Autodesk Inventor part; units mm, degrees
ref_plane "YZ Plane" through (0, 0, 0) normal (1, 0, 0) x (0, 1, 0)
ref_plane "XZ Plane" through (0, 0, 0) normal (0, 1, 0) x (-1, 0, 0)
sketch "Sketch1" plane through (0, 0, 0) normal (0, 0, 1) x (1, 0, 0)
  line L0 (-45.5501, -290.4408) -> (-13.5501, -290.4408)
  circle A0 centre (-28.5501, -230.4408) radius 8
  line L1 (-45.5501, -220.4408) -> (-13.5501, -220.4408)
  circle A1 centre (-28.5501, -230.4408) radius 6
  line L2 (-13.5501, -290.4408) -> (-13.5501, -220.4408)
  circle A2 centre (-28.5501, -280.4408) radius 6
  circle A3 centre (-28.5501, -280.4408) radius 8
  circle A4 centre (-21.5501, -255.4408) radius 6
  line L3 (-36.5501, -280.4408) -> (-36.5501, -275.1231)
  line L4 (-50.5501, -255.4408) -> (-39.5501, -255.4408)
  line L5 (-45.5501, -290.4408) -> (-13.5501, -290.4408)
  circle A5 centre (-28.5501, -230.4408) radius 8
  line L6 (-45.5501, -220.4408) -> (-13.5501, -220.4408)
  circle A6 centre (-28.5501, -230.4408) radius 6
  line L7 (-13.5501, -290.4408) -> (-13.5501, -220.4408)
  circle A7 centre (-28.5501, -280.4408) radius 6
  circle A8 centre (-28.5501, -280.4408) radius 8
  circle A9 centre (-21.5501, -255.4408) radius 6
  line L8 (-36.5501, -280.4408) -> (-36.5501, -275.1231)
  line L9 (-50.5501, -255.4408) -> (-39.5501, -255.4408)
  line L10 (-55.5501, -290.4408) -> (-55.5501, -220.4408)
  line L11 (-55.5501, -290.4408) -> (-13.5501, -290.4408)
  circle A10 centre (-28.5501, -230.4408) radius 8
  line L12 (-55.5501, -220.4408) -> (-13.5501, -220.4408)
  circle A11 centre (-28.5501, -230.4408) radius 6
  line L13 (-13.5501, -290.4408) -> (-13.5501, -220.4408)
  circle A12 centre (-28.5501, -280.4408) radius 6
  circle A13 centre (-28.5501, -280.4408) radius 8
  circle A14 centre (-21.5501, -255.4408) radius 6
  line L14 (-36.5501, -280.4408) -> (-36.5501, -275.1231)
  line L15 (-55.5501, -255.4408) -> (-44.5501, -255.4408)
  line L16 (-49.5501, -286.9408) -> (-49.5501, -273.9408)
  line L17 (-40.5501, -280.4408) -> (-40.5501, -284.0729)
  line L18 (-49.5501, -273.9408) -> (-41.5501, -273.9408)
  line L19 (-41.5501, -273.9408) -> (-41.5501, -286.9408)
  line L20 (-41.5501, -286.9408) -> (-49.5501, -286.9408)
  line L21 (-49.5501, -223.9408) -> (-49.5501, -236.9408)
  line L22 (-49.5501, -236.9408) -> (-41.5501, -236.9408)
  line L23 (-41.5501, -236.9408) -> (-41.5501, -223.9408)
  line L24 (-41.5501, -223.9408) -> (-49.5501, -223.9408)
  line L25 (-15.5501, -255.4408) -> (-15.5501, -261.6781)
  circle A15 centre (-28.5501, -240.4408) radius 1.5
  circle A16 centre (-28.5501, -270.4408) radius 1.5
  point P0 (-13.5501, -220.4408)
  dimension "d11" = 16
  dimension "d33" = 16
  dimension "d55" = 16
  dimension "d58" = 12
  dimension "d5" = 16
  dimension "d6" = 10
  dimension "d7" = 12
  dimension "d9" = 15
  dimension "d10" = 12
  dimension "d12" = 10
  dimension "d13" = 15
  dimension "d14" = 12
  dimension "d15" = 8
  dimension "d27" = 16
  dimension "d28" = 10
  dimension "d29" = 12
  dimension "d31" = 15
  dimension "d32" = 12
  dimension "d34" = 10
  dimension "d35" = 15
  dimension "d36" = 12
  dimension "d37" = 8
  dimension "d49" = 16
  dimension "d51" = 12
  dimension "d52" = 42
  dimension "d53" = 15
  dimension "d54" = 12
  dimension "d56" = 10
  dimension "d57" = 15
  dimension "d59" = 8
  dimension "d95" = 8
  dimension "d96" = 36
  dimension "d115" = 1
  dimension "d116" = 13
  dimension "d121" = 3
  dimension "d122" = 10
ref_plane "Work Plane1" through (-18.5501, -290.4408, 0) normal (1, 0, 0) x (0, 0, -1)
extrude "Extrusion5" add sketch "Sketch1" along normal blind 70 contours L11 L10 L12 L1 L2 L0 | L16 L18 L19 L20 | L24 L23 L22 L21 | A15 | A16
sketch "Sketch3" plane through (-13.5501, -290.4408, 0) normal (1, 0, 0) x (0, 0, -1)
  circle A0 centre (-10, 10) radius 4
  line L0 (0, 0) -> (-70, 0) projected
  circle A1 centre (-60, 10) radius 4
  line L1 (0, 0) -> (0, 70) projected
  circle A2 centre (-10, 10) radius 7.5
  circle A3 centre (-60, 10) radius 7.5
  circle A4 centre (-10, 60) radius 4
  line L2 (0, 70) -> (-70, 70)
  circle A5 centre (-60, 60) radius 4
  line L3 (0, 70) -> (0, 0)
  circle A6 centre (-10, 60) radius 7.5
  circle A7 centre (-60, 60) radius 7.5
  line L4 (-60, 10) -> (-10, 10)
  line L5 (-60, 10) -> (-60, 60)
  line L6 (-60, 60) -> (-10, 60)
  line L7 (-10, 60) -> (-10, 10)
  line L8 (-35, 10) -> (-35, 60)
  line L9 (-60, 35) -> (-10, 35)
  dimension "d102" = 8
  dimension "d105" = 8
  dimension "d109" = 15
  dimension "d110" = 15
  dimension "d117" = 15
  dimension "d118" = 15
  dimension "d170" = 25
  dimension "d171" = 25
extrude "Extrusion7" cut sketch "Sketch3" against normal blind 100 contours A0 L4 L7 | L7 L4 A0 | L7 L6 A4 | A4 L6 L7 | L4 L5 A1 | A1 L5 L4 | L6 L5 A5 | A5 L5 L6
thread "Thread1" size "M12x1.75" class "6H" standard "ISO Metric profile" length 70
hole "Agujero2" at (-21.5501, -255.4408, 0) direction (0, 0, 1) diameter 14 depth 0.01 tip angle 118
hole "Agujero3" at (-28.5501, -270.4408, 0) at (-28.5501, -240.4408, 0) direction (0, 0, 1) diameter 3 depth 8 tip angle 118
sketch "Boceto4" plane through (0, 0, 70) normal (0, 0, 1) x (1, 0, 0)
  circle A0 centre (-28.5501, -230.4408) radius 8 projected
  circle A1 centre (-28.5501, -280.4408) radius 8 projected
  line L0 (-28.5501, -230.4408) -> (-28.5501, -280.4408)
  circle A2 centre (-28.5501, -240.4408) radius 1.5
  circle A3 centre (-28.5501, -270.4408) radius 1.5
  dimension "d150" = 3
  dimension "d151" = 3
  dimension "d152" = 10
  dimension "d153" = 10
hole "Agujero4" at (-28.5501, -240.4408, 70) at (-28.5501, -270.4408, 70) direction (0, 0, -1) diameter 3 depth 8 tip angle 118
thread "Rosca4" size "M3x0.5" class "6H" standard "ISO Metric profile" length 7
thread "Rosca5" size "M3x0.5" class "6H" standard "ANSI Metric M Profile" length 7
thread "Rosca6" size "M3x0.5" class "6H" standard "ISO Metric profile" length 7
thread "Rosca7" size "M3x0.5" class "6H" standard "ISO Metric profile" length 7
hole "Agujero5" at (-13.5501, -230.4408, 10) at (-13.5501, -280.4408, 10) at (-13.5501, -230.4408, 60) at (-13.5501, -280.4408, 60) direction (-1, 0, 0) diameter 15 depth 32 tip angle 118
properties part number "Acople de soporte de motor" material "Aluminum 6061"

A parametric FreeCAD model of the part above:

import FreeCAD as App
import Part
import Sketcher
from FreeCAD import Vector


def add_polygon(sketch, points):
    """Adds a closed chain of lines whose ends are joined by coincident constraints."""
    first, n = sketch.GeometryCount, len(points)
    for a, b in zip(points, points[1:] + points[:1]):
        sketch.addGeometry(Part.LineSegment(App.Vector(*a, 0), App.Vector(*b, 0)), False)
    for i in range(n):
        sketch.addConstraint(Sketcher.Constraint("Coincident", first + i, 2, first + (i + 1) % n, 1))

doc = App.newDocument("Part")
params = doc.addObject("Spreadsheet::Sheet", "Params")
for row, (alias, value) in enumerate([
    ("sketch1_diameter", "16 mm"),
    ("sketch1_diameter2", "12 mm"),
    ("sketch1_width", "42 mm"),
    ("sketch1_height", "70 mm"),
    ("pad1_length", "70 mm"),
    ("sketch2_diameter", "8 mm"),
    ("pocket1_length", "100 mm"),
    ("sketch3_diameter", "14 mm"),
    ("hole_diameter", "14 mm"),
    ("hole_depth", "0.01 mm"),
    ("sketch4_diameter", "3 mm"),
    ("hole2_diameter", "3 mm"),
    ("hole2_depth", "8 mm"),
    ("sketch5_diameter", "3 mm"),
    ("hole3_diameter", "3 mm"),
    ("hole3_depth", "8 mm"),
    ("sketch6_diameter", "15 mm"),
    ("hole4_diameter", "15 mm"),
    ("hole4_depth", "32 mm"),
], start=1):
    params.set(f"A{row}", alias)
    params.set(f"B{row}", "=" + value)
    params.setAlias(f"B{row}", alias)

body = doc.addObject("PartDesign::Body", "Body")

# Sketch on XY plane
sketch1 = doc.addObject("Sketcher::SketchObject", "Sketch")
body.addObject(sketch1)
sketch1.AttachmentSupport = (doc.XY_Plane, [""])
sketch1.MapMode = "FlatFace"
add_polygon(sketch1, [(-56, -290), (-14, -290), (-14, -220), (-56, -220)])  # lines 0-3
sketch1.addGeometry(Part.Circle(Vector(-29, -280, 0), Vector(0, 0, 1), 8), False)  # 4
sketch1.addGeometry(Part.Circle(Vector(-22, -255, 0), Vector(0, 0, 1), 6), False)  # 5
sketch1.addGeometry(Part.Circle(Vector(-29, -230, 0), Vector(0, 0, 1), 8), False)  # 6
sketch1.addConstraint([
    Sketcher.Constraint("Horizontal", 0),
    Sketcher.Constraint("Vertical", 1),
    Sketcher.Constraint("Horizontal", 2),
    Sketcher.Constraint("Vertical", 3),
    Sketcher.Constraint("Equal", 4, 6),
    Sketcher.Constraint("Vertical", 4, 3, 6, 3),
    Sketcher.Constraint("Diameter", 4, 16.0),
    Sketcher.Constraint("Diameter", 5, 12.0),
    Sketcher.Constraint("DistanceX", 0, 1, 0, 2, 42.0),
    Sketcher.Constraint("DistanceX", 4, 3, 0, 2, 15.0),
    Sketcher.Constraint("DistanceY", 0, 2, 4, 3, 10.0),
    Sketcher.Constraint("DistanceX", 5, 3, 0, 2, 8.0),
    Sketcher.Constraint("DistanceY", 6, 3, 1, 2, 10.0),
    Sketcher.Constraint("DistanceY", 1, 1, 1, 2, 70.0),
    Sketcher.Constraint("DistanceY", 4, 3, 5, 3, 25.0),
    Sketcher.Constraint("DistanceX", 4, 3, -1, 1, 28.55),
    Sketcher.Constraint("DistanceY", 4, 3, -1, 1, 280.4408),
])
sketch1.setExpression("Constraints[10]", "Params.sketch1_diameter")
sketch1.setExpression("Constraints[11]", "Params.sketch1_diameter2")
sketch1.setExpression("Constraints[12]", "Params.sketch1_width")
sketch1.setExpression("Constraints[17]", "Params.sketch1_height")
pad1 = doc.addObject("PartDesign::Pad", "Pad")
body.addObject(pad1)
pad1.Profile = sketch1
pad1.setExpression("Length", "Params.pad1_length")

# Sketch on YZ plane
sketch2 = doc.addObject("Sketcher::SketchObject", "Sketch001")
body.addObject(sketch2)
sketch2.AttachmentSupport = (doc.YZ_Plane, [""])
sketch2.MapMode = "FlatFace"
sketch2.AttachmentOffset = App.Placement(Vector(0, 0, -13.5501), App.Rotation())
sketch2.addGeometry([
    Part.Circle(Vector(-280.4, 10, 0), Vector(0, 0, 1), 4),
    Part.Circle(Vector(-230.4, 10, 0), Vector(0, 0, 1), 4),
    Part.Circle(Vector(-280.4, 60, 0), Vector(0, 0, 1), 4),
    Part.Circle(Vector(-230.4, 60, 0), Vector(0, 0, 1), 4),
], False)
sketch2.addConstraint([
    Sketcher.Constraint("Equal", 0, 1),
    Sketcher.Constraint("Equal", 1, 2),
    Sketcher.Constraint("Equal", 2, 3),
    Sketcher.Constraint("Horizontal", 0, 3, 1, 3),
    Sketcher.Constraint("Horizontal", 2, 3, 3, 3),
    Sketcher.Constraint("Vertical", 0, 3, 2, 3),
    Sketcher.Constraint("Vertical", 1, 3, 3, 3),
    Sketcher.Constraint("Diameter", 0, 8.0),
    Sketcher.Constraint("DistanceY", -1, 1, 0, 3, 10.0),
    Sketcher.Constraint("DistanceY", -1, 1, 2, 3, 60.0),
    Sketcher.Constraint("DistanceX", 0, 3, 1, 3, 50.0),
    Sketcher.Constraint("DistanceX", 0, 3, -1, 1, 280.4408),
])
sketch2.setExpression("Constraints[7]", "Params.sketch2_diameter")
pocket1 = doc.addObject("PartDesign::Pocket", "Pocket")
body.addObject(pocket1)
pocket1.Profile = sketch2
pocket1.setExpression("Length", "Params.pocket1_length")

# Sketch on XY plane
sketch3 = doc.addObject("Sketcher::SketchObject", "Sketch002")
body.addObject(sketch3)
sketch3.AttachmentSupport = (doc.XY_Plane, [""])
sketch3.MapMode = "FlatFace"
sketch3.addGeometry(Part.Circle(Vector(-22, -255, 0), Vector(0, 0, 1), 7), False)
sketch3.addConstraint([
    Sketcher.Constraint("Diameter", 0, 14.0),
    Sketcher.Constraint("DistanceX", 0, 3, -1, 1, 21.55),
    Sketcher.Constraint("DistanceY", 0, 3, -1, 1, 255.4408),
])
sketch3.setExpression("Constraints[0]", "Params.sketch3_diameter")
doc.recompute()
hole = doc.addObject("PartDesign::Hole", "Hole")
body.addObject(hole)
hole.Profile = sketch3
hole.ThreadType = "None"
hole.setExpression("Diameter", "Params.hole_diameter")
hole.DepthType = "Dimension"
hole.setExpression("Depth", "Params.hole_depth")
hole.DrillPoint = "Angled"
hole.DrillPointAngle = 118
hole.Reversed = True

# Sketch on XY plane
sketch4 = doc.addObject("Sketcher::SketchObject", "Sketch003")
body.addObject(sketch4)
sketch4.AttachmentSupport = (doc.XY_Plane, [""])
sketch4.MapMode = "FlatFace"
sketch4.addGeometry([
    Part.Circle(Vector(-28.6, -270.4, 0), Vector(0, 0, 1), 1.5),
    Part.Circle(Vector(-28.6, -240.4, 0), Vector(0, 0, 1), 1.5),
], False)
sketch4.addConstraint([
    Sketcher.Constraint("Equal", 0, 1),
    Sketcher.Constraint("Vertical", 0, 3, 1, 3),
    Sketcher.Constraint("Diameter", 0, 3.0),
    Sketcher.Constraint("DistanceY", 0, 3, 1, 3, 30.0),
    Sketcher.Constraint("DistanceX", 0, 3, -1, 1, 28.55),
    Sketcher.Constraint("DistanceY", 0, 3, -1, 1, 270.4408),
])
sketch4.setExpression("Constraints[2]", "Params.sketch4_diameter")
doc.recompute()
hole2 = doc.addObject("PartDesign::Hole", "Hole001")
body.addObject(hole2)
hole2.Profile = sketch4
hole2.ThreadType = "None"
hole2.setExpression("Diameter", "Params.hole2_diameter")
hole2.DepthType = "Dimension"
hole2.setExpression("Depth", "Params.hole2_depth")
hole2.DrillPoint = "Angled"
hole2.DrillPointAngle = 118
hole2.Reversed = True

# Sketch on XY plane
sketch5 = doc.addObject("Sketcher::SketchObject", "Sketch004")
body.addObject(sketch5)
sketch5.AttachmentSupport = (doc.XY_Plane, [""])
sketch5.MapMode = "FlatFace"
sketch5.AttachmentOffset = App.Placement(Vector(0, 0, 70), App.Rotation())
sketch5.addGeometry([
    Part.Circle(Vector(-28.6, -240.4, 0), Vector(0, 0, 1), 1.5),
    Part.Circle(Vector(-28.6, -270.4, 0), Vector(0, 0, 1), 1.5),
], False)
sketch5.addConstraint([
    Sketcher.Constraint("Equal", 0, 1),
    Sketcher.Constraint("Vertical", 0, 3, 1, 3),
    Sketcher.Constraint("Diameter", 0, 3.0),
    Sketcher.Constraint("DistanceY", 1, 3, 0, 3, 30.0),
    Sketcher.Constraint("DistanceX", 0, 3, -1, 1, 28.55),
    Sketcher.Constraint("DistanceY", 0, 3, -1, 1, 240.4408),
])
sketch5.setExpression("Constraints[2]", "Params.sketch5_diameter")
doc.recompute()
hole3 = doc.addObject("PartDesign::Hole", "Hole002")
body.addObject(hole3)
hole3.Profile = sketch5
hole3.ThreadType = "None"
hole3.setExpression("Diameter", "Params.hole3_diameter")
hole3.DepthType = "Dimension"
hole3.setExpression("Depth", "Params.hole3_depth")
hole3.DrillPoint = "Angled"
hole3.DrillPointAngle = 118

# Sketch on YZ plane
sketch6 = doc.addObject("Sketcher::SketchObject", "Sketch005")
body.addObject(sketch6)
sketch6.AttachmentSupport = (doc.YZ_Plane, [""])
sketch6.MapMode = "FlatFace"
sketch6.AttachmentOffset = App.Placement(Vector(0, 0, -13.5501), App.Rotation())
sketch6.addGeometry([
    Part.Circle(Vector(-230, 10, 0), Vector(0, 0, 1), 8),
    Part.Circle(Vector(-280, 10, 0), Vector(0, 0, 1), 8),
    Part.Circle(Vector(-230, 60, 0), Vector(0, 0, 1), 8),
    Part.Circle(Vector(-280, 60, 0), Vector(0, 0, 1), 8),
], False)
sketch6.addConstraint([
    Sketcher.Constraint("Equal", 0, 1),
    Sketcher.Constraint("Equal", 1, 2),
    Sketcher.Constraint("Equal", 2, 3),
    Sketcher.Constraint("Horizontal", 0, 3, 1, 3),
    Sketcher.Constraint("Horizontal", 2, 3, 3, 3),
    Sketcher.Constraint("Vertical", 0, 3, 2, 3),
    Sketcher.Constraint("Vertical", 1, 3, 3, 3),
    Sketcher.Constraint("Diameter", 0, 15.0),
    Sketcher.Constraint("DistanceY", -1, 1, 0, 3, 10.0),
    Sketcher.Constraint("DistanceY", -1, 1, 2, 3, 60.0),
    Sketcher.Constraint("DistanceX", 1, 3, 0, 3, 50.0),
    Sketcher.Constraint("DistanceX", 0, 3, -1, 1, 230.4408),
])
sketch6.setExpression("Constraints[7]", "Params.sketch6_diameter")
doc.recompute()
hole4 = doc.addObject("PartDesign::Hole", "Hole003")
body.addObject(hole4)
hole4.Profile = sketch6
hole4.ThreadType = "None"
hole4.setExpression("Diameter", "Params.hole4_diameter")
hole4.DepthType = "Dimension"
hole4.setExpression("Depth", "Params.hole4_depth")
hole4.DrillPoint = "Angled"
hole4.DrillPointAngle = 118

doc.recompute()
